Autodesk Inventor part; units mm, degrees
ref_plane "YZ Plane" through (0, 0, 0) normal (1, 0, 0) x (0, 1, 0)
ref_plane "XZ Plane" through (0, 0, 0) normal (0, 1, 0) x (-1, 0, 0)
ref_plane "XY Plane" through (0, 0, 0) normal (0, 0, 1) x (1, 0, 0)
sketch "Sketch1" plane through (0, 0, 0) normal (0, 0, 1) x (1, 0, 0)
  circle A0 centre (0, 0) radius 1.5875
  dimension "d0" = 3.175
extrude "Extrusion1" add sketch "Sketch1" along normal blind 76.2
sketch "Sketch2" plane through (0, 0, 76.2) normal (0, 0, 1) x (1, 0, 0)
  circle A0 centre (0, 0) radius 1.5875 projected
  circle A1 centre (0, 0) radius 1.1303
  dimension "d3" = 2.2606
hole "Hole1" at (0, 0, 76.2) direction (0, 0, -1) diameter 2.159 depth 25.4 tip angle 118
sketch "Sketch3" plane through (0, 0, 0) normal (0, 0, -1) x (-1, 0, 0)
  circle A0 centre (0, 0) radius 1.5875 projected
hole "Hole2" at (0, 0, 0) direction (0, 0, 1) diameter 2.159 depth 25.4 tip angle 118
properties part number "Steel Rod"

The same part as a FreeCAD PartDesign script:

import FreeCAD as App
import Part
import Sketcher
Q = App.Units.Quantity

doc = App.newDocument("Part")
params = doc.addObject("Spreadsheet::Sheet", "Params")
for row, (alias, value) in enumerate([
    ("sketch1_diameter", "0.125 in"),
    ("pad1_length", "3 in"),
    ("sketch2_diameter", "0.085 in"),
    ("hole_diameter", "0.085 in"),
    ("hole_depth", "1 in"),
    ("sketch3_diameter", "0.085 in"),
    ("hole2_diameter", "0.085 in"),
    ("hole2_depth", "1 in"),
], start=1):
    params.set(f"A{row}", alias)
    params.set(f"B{row}", "=" + value)
    params.setAlias(f"B{row}", alias)

body = doc.addObject("PartDesign::Body", "Body")

# Sketch on XY plane
sketch1 = body.newObject("Sketcher::SketchObject", "Sketch")
sketch1.AttachmentSupport = (doc.getObject("XY_Plane"), [""])
sketch1.MapMode = "FlatFace"
sketch1.addGeometry(Part.Circle(App.Vector(0, 0, 0), App.Vector(0, 0, 1), 1.6), False)
sketch1.addConstraint(Sketcher.Constraint("Coincident", 0, 3, -1, 1))
sketch1.addConstraint(Sketcher.Constraint("Diameter", 0, Q("0.125 in")))
sketch1.setExpression("Constraints[1]", "Params.sketch1_diameter")
pad1 = body.newObject("PartDesign::Pad", "Pad")
pad1.Profile = sketch1
pad1.setExpression("Length", "Params.pad1_length")

# Sketch on XY plane
sketch2 = body.newObject("Sketcher::SketchObject", "Sketch001")
sketch2.AttachmentSupport = (doc.getObject("XY_Plane"), [""])
sketch2.MapMode = "FlatFace"
sketch2.AttachmentOffset = App.Placement(App.Vector(0, 0, 3 * 25.4), App.Rotation())
sketch2.addGeometry(Part.Circle(App.Vector(0, 0, 0), App.Vector(0, 0, 1), 1.1), False)
sketch2.addConstraint(Sketcher.Constraint("Coincident", 0, 3, -1, 1))
sketch2.addConstraint(Sketcher.Constraint("Diameter", 0, Q("0.085 in")))
sketch2.setExpression("Constraints[1]", "Params.sketch2_diameter")
doc.recompute()
hole = body.newObject("PartDesign::Hole", "Hole")
hole.Profile = sketch2
hole.ThreadType = "None"
hole.setExpression("Diameter", "Params.hole_diameter")
hole.DepthType = "Dimension"
hole.setExpression("Depth", "Params.hole_depth")
hole.DrillPoint = "Angled"
hole.DrillPointAngle = 118

# Sketch on XY plane
sketch3 = body.newObject("Sketcher::SketchObject", "Sketch002")
sketch3.AttachmentSupport = (doc.getObject("XY_Plane"), [""])
sketch3.MapMode = "FlatFace"
sketch3.addGeometry(Part.Circle(App.Vector(0, 0, 0), App.Vector(0, 0, 1), 1.1), False)
sketch3.addConstraint(Sketcher.Constraint("Coincident", 0, 3, -1, 1))
sketch3.addConstraint(Sketcher.Constraint("Diameter", 0, Q("0.085 in")))
sketch3.setExpression("Constraints[1]", "Params.sketch3_diameter")
doc.recompute()
hole2 = body.newObject("PartDesign::Hole", "Hole001")
hole2.Profile = sketch3
hole2.ThreadType = "None"
hole2.setExpression("Diameter", "Params.hole2_diameter")
hole2.DepthType = "Dimension"
hole2.setExpression("Depth", "Params.hole2_depth")
hole2.DrillPoint = "Angled"
hole2.DrillPointAngle = 118
hole2.Reversed = True

doc.recompute()
